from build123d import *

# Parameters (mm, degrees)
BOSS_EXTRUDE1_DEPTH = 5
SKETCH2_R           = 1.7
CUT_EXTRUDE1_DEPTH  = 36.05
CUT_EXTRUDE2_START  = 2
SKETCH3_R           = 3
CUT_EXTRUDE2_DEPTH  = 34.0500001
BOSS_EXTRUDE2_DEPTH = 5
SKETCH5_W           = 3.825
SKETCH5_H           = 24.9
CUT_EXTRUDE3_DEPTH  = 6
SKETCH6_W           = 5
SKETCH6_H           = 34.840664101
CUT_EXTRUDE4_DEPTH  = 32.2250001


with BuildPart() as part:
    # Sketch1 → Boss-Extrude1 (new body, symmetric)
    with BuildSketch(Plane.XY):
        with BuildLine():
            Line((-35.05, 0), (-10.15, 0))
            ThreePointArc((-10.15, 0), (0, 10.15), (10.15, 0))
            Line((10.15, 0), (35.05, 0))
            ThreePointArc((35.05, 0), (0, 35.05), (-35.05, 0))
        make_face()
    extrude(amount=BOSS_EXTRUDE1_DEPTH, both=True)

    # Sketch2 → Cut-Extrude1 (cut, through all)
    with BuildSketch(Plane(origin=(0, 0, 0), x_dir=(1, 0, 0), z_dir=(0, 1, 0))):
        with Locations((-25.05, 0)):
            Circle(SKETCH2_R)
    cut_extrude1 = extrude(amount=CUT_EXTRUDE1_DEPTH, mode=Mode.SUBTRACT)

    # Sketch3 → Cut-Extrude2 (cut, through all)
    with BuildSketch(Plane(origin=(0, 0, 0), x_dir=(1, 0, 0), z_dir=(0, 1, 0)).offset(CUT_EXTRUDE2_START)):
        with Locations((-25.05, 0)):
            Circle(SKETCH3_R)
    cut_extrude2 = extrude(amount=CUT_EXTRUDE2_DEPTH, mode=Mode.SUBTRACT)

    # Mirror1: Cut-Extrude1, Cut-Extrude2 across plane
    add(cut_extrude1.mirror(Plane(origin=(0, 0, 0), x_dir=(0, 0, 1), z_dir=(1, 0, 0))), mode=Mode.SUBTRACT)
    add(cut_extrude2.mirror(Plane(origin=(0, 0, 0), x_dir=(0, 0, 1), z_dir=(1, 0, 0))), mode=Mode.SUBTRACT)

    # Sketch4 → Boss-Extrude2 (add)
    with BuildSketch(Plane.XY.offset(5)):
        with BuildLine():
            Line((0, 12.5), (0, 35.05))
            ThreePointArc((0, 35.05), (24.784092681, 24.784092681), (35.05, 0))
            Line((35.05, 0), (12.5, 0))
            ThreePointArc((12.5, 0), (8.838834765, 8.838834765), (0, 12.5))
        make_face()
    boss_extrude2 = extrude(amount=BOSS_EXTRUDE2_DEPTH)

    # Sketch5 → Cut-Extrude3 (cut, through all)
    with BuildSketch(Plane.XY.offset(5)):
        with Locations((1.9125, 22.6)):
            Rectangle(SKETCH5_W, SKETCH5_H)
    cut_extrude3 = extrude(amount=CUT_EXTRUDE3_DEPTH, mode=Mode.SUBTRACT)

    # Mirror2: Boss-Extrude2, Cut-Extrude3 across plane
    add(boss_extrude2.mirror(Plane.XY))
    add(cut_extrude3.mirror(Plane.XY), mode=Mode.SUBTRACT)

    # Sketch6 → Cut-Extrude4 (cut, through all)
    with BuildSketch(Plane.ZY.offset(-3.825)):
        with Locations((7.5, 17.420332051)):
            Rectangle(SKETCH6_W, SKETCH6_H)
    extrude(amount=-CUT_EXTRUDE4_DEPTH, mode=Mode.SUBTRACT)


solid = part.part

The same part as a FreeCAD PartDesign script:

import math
import FreeCAD as App
import Part
import Sketcher

V = App.Vector
Q = App.Units.Quantity

doc = App.newDocument("Part")
body = doc.addObject("PartDesign::Body", "Body")

# Sketch on XY plane
sketch1 = body.newObject("Sketcher::SketchObject", "Sketch")
sketch1.AttachmentSupport = (doc.getObject("XY_Plane"), [""])
sketch1.MapMode = "FlatFace"
sketch1.addGeometry(Part.LineSegment(V(-35, 0, 0), V(-10, 0, 0)), False)
sketch1.addGeometry(Part.ArcOfCircle(Part.Circle(V(0, 0, 0), V(0, 0, 1), 10), math.radians(0), math.radians(180)), False)
sketch1.addGeometry(Part.LineSegment(V(10, 0, 0), V(35, 0, 0)), False)
sketch1.addGeometry(Part.ArcOfCircle(Part.Circle(V(0, 0, 0), V(0, 0, 1), 35), math.radians(0), math.radians(180)), False)
sketch1.addConstraint(Sketcher.Constraint("Coincident", 0, 2, 1, 2))
sketch1.addConstraint(Sketcher.Constraint("Coincident", 1, 1, 2, 1))
sketch1.addConstraint(Sketcher.Constraint("Coincident", 2, 2, 3, 1))
sketch1.addConstraint(Sketcher.Constraint("Coincident", 3, 2, 0, 1))
sketch1.addConstraint(Sketcher.Constraint("Horizontal", 0))
sketch1.addConstraint(Sketcher.Constraint("Horizontal", 2))
sketch1.addConstraint(Sketcher.Constraint("Coincident", 1, 3, -1, 1))
sketch1.addConstraint(Sketcher.Constraint("Coincident", 3, 3, -1, 1))
sketch1.addConstraint(Sketcher.Constraint("PointOnObject", 0, 2, -1))
sketch1.addConstraint(Sketcher.Constraint("PointOnObject", 1, 1, -1))
sketch1.addConstraint(Sketcher.Constraint("Radius", 1, Q("10.15 mm")))
sketch1.addConstraint(Sketcher.Constraint("Radius", 3, Q("35.05 mm")))
pad1 = body.newObject("PartDesign::Pad", "Pad")
pad1.Profile = sketch1
pad1.Length = 10
pad1.Midplane = True

# Sketch on XZ plane
sketch2 = body.newObject("Sketcher::SketchObject", "Sketch001")
sketch2.AttachmentSupport = (doc.getObject("XZ_Plane"), [""])
sketch2.MapMode = "FlatFace"
sketch2.addGeometry(Part.Circle(V(-25.1, 0, 0), V(0, 0, 1), 1.7), False)
sketch2.addConstraint(Sketcher.Constraint("PointOnObject", 0, 3, -1))
sketch2.addConstraint(Sketcher.Constraint("Diameter", 0, Q("3.4 mm")))
sketch2.addConstraint(Sketcher.Constraint("DistanceX", 0, 3, -1, 1, Q("25.05 mm")))
pocket1 = body.newObject("PartDesign::Pocket", "Pocket")
pocket1.Profile = sketch2
pocket1.Type = "ThroughAll"

# Sketch on XZ plane
sketch3 = body.newObject("Sketcher::SketchObject", "Sketch002")
sketch3.AttachmentSupport = (doc.getObject("XZ_Plane"), [""])
sketch3.MapMode = "FlatFace"
sketch3.AttachmentOffset = App.Placement(V(0, 0, -2), App.Rotation())
sketch3.addGeometry(Part.Circle(V(-25.1, 0, 0), V(0, 0, 1), 3), False)
sketch3.addConstraint(Sketcher.Constraint("PointOnObject", 0, 3, -1))
sketch3.addConstraint(Sketcher.Constraint("Diameter", 0, Q("6 mm")))
sketch3.addConstraint(Sketcher.Constraint("DistanceX", 0, 3, -1, 1, Q("25.05 mm")))
pocket2 = body.newObject("PartDesign::Pocket", "Pocket001")
pocket2.Profile = sketch3
pocket2.Type = "ThroughAll"
doc.recompute()

mirrored = body.newObject("PartDesign::Mirrored", "Mirrored")
mirrored.Originals = [pocket1, pocket2]
mirrored.MirrorPlane = (doc.getObject("YZ_Plane"), [""])
body.Tip = mirrored

# Sketch on XY plane
sketch4 = body.newObject("Sketcher::SketchObject", "Sketch003")
sketch4.AttachmentSupport = (doc.getObject("XY_Plane"), [""])
sketch4.MapMode = "FlatFace"
sketch4.AttachmentOffset = App.Placement(V(0, 0, 5), App.Rotation())
sketch4.addGeometry(Part.LineSegment(V(0, 35, 0), V(0, 12, 0)), False)
sketch4.addGeometry(Part.ArcOfCircle(Part.Circle(V(0, 0, 0), V(0, 0, 1), 12), math.radians(0), math.radians(90)), False)
sketch4.addGeometry(Part.LineSegment(V(12, 0, 0), V(35, 0, 0)), False)
sketch4.addGeometry(Part.ArcOfCircle(Part.Circle(V(0, 0, 0), V(0, 0, 1), 35), math.radians(0), math.radians(90)), False)
sketch4.addConstraint(Sketcher.Constraint("Coincident", 0, 2, 1, 2))
sketch4.addConstraint(Sketcher.Constraint("Coincident", 1, 1, 2, 1))
sketch4.addConstraint(Sketcher.Constraint("Coincident", 2, 2, 3, 1))
sketch4.addConstraint(Sketcher.Constraint("Coincident", 3, 2, 0, 1))
sketch4.addConstraint(Sketcher.Constraint("Vertical", 0))
sketch4.addConstraint(Sketcher.Constraint("Horizontal", 2))
sketch4.addConstraint(Sketcher.Constraint("Coincident", 1, 3, -1, 1))
sketch4.addConstraint(Sketcher.Constraint("Coincident", 3, 3, -1, 1))
sketch4.addConstraint(Sketcher.Constraint("PointOnObject", 0, 2, -2))
sketch4.addConstraint(Sketcher.Constraint("PointOnObject", 1, 1, -1))
sketch4.addConstraint(Sketcher.Constraint("Radius", 1, Q("12.5 mm")))
sketch4.addConstraint(Sketcher.Constraint("Radius", 3, Q("35.05 mm")))
pad2 = body.newObject("PartDesign::Pad", "Pad001")
pad2.Profile = sketch4
pad2.Length = 5

# Sketch on XY plane
sketch5 = body.newObject("Sketcher::SketchObject", "Sketch004")
sketch5.AttachmentSupport = (doc.getObject("XY_Plane"), [""])
sketch5.MapMode = "FlatFace"
sketch5.AttachmentOffset = App.Placement(V(0, 0, 5), App.Rotation())
sketch5.addGeometry(Part.LineSegment(V(0, 35, 0), V(0, 10.2, 0)), False)
sketch5.addGeometry(Part.LineSegment(V(0, 10.2, 0), V(3.8, 10.2, 0)), False)
sketch5.addGeometry(Part.LineSegment(V(3.8, 10.2, 0), V(3.8, 35, 0)), False)
sketch5.addGeometry(Part.LineSegment(V(3.8, 35, 0), V(0, 35, 0)), False)
sketch5.addConstraint(Sketcher.Constraint("Coincident", 0, 2, 1, 1))
sketch5.addConstraint(Sketcher.Constraint("Coincident", 1, 2, 2, 1))
sketch5.addConstraint(Sketcher.Constraint("Coincident", 2, 2, 3, 1))
sketch5.addConstraint(Sketcher.Constraint("Coincident", 3, 2, 0, 1))
sketch5.addConstraint(Sketcher.Constraint("Vertical", 0))
sketch5.addConstraint(Sketcher.Constraint("Horizontal", 1))
sketch5.addConstraint(Sketcher.Constraint("Vertical", 2))
sketch5.addConstraint(Sketcher.Constraint("Horizontal", 3))
sketch5.addConstraint(Sketcher.Constraint("PointOnObject", 0, 2, -2))
sketch5.addConstraint(Sketcher.Constraint("DistanceY", 0, 2, 0, 1, Q("24.9 mm")))
sketch5.addConstraint(Sketcher.Constraint("DistanceX", 1, 1, 1, 2, Q("3.825 mm")))
sketch5.addConstraint(Sketcher.Constraint("DistanceY", -1, 1, 0, 2, Q("10.15 mm")))
pocket3 = body.newObject("PartDesign::Pocket", "Pocket002")
pocket3.Profile = sketch5
pocket3.Type = "ThroughAll"
pocket3.Reversed = True
doc.recompute()

mirrored2 = body.newObject("PartDesign::Mirrored", "Mirrored001")
mirrored2.Originals = [pad2, pocket3]
mirrored2.MirrorPlane = (doc.getObject("XY_Plane"), [""])
body.Tip = mirrored2

# Sketch on YZ plane
sketch6 = body.newObject("Sketcher::SketchObject", "Sketch005")
sketch6.AttachmentSupport = (doc.getObject("YZ_Plane"), [""])
sketch6.MapMode = "FlatFace"
sketch6.AttachmentOffset = App.Placement(V(0, 0, 3.825), App.Rotation())
sketch6.addGeometry(Part.LineSegment(V(35, 5, 0), V(0, 5, 0)), False)
sketch6.addGeometry(Part.LineSegment(V(0, 5, 0), V(0, 10, 0)), False)
sketch6.addGeometry(Part.LineSegment(V(0, 10, 0), V(35, 10, 0)), False)
sketch6.addGeometry(Part.LineSegment(V(35, 10, 0), V(35, 5, 0)), False)
sketch6.addConstraint(Sketcher.Constraint("Coincident", 0, 2, 1, 1))
sketch6.addConstraint(Sketcher.Constraint("Coincident", 1, 2, 2, 1))
sketch6.addConstraint(Sketcher.Constraint("Coincident", 2, 2, 3, 1))
sketch6.addConstraint(Sketcher.Constraint("Coincident", 3, 2, 0, 1))
sketch6.addConstraint(Sketcher.Constraint("Horizontal", 0))
sketch6.addConstraint(Sketcher.Constraint("Vertical", 1))
sketch6.addConstraint(Sketcher.Constraint("Horizontal", 2))
sketch6.addConstraint(Sketcher.Constraint("Vertical", 3))
sketch6.addConstraint(Sketcher.Constraint("PointOnObject", 0, 2, -2))
sketch6.addConstraint(Sketcher.Constraint("DistanceY", 1, 1, 1, 2, Q("5 mm")))
sketch6.addConstraint(Sketcher.Constraint("DistanceY", -1, 1, 0, 2, Q("5 mm")))
sketch6.addConstraint(Sketcher.Constraint("DistanceX", 0, 2, 0, 1, Q("34.840664 mm")))
pocket4 = body.newObject("PartDesign::Pocket", "Pocket003")
pocket4.Profile = sketch6
pocket4.Type = "ThroughAll"
pocket4.Reversed = True

doc.recompute()
